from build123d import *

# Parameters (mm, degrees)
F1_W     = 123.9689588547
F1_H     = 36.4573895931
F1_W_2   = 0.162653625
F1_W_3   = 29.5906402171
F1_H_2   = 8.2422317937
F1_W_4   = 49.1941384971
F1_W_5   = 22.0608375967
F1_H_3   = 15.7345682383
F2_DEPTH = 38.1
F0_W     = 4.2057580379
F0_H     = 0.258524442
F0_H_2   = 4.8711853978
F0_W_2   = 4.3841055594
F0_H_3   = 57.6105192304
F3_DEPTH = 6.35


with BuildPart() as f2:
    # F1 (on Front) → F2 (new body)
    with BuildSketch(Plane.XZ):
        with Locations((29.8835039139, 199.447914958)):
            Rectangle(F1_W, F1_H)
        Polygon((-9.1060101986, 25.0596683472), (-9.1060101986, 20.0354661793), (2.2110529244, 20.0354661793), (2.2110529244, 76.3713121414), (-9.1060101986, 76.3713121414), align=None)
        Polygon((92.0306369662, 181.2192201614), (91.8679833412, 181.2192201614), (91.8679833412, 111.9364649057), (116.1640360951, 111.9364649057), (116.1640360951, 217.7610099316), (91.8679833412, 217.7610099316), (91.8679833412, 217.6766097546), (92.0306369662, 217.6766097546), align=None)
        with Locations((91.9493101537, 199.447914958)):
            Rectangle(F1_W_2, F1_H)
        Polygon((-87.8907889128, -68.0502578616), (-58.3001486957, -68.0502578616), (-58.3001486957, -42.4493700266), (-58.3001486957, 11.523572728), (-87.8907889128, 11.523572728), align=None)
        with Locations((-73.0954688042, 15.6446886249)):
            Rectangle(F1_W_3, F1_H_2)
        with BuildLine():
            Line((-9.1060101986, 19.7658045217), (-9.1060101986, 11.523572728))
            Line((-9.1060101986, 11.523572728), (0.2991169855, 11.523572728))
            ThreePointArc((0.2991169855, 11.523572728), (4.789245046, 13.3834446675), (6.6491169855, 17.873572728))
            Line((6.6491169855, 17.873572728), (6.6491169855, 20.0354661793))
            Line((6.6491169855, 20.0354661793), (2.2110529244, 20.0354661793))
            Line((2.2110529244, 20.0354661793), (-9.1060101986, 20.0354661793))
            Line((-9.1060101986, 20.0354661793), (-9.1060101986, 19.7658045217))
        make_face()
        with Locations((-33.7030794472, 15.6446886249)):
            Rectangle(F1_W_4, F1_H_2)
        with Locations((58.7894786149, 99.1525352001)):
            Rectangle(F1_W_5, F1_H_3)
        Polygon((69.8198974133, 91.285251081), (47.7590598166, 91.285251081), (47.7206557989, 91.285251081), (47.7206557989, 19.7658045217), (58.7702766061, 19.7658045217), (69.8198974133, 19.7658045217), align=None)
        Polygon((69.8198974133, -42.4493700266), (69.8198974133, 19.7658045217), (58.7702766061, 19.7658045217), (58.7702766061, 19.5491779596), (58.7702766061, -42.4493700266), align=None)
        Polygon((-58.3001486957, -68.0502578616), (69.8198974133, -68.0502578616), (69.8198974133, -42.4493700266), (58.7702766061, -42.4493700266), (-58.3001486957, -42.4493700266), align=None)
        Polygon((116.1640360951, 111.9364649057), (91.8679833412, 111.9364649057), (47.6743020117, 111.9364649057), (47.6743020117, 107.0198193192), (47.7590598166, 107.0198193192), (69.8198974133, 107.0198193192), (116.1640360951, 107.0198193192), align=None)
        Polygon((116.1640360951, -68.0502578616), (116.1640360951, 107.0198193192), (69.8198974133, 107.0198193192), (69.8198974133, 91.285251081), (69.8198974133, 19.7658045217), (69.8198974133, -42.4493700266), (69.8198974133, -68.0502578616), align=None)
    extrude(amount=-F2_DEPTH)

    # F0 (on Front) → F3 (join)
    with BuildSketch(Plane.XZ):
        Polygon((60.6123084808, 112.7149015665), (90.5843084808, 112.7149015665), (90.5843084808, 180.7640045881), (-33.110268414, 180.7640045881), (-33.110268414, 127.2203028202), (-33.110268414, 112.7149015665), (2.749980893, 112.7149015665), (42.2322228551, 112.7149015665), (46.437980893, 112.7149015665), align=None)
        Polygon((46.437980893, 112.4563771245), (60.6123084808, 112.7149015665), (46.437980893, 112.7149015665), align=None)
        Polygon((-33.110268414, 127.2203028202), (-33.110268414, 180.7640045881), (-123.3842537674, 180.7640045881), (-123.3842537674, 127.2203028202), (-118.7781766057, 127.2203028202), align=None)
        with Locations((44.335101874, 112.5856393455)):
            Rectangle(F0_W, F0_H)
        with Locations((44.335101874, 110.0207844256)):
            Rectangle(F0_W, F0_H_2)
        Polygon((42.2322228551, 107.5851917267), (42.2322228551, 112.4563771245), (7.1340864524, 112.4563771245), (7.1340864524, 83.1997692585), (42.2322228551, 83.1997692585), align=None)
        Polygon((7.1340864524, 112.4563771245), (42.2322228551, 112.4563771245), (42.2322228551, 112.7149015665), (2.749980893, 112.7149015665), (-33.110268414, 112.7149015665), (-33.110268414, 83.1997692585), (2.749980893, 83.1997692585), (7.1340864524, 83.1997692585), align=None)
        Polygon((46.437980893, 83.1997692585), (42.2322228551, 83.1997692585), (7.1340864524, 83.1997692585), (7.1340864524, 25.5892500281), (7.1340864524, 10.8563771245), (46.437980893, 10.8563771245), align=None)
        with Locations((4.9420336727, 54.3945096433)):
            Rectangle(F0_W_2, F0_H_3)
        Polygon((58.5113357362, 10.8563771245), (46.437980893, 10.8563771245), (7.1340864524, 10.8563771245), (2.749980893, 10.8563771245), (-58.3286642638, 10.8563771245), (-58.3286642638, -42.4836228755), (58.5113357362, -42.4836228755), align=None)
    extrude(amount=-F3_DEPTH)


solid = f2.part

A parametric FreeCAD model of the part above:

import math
import FreeCAD as App
import Part
import Sketcher

V = App.Vector
Q = App.Units.Quantity

doc = App.newDocument("Part")
body = doc.addObject("PartDesign::Body", "Body")

sketch1 = body.newObject("Sketcher::SketchObject", "Sketch")
sketch1.AttachmentSupport = (doc.getObject("XZ_Plane"), [""])
sketch1.MapMode = "FlatFace"
sketch1.addGeometry(Part.LineSegment(V(-32.101, 217.677, 0), V(-32.101, 181.219, 0)), False)
sketch1.addGeometry(Part.LineSegment(V(-32.101, 181.219, 0), V(91.868, 181.219, 0)), False)
sketch1.addGeometry(Part.LineSegment(V(91.868, 181.219, 0), V(91.868, 111.936, 0)), False)
sketch1.addGeometry(Part.LineSegment(V(91.868, 111.936, 0), V(47.674, 111.936, 0)), False)
sketch1.addGeometry(Part.LineSegment(V(47.674, 111.936, 0), V(47.674, 107.02, 0)), False)
sketch1.addGeometry(Part.LineSegment(V(47.674, 107.02, 0), V(47.759, 107.02, 0)), False)
sketch1.addGeometry(Part.LineSegment(V(47.759, 107.02, 0), V(47.759, 91.285, 0)), False)
sketch1.addGeometry(Part.LineSegment(V(47.759, 91.285, 0), V(47.721, 91.285, 0)), False)
sketch1.addGeometry(Part.LineSegment(V(47.721, 91.285, 0), V(47.721, 19.766, 0)), False)
sketch1.addGeometry(Part.LineSegment(V(47.721, 19.766, 0), V(58.77, 19.766, 0)), False)
sketch1.addGeometry(Part.LineSegment(V(58.77, 19.766, 0), V(58.77, -42.449, 0)), False)
sketch1.addGeometry(Part.LineSegment(V(58.77, -42.449, 0), V(-58.3, -42.449, 0)), False)
sketch1.addGeometry(Part.LineSegment(V(-58.3, -42.449, 0), V(-58.3, 11.524, 0)), False)
sketch1.addGeometry(Part.LineSegment(V(-58.3, 11.524, 0), V(0.299, 11.524, 0)), False)
sketch1.addGeometry(Part.ArcOfCircle(Part.Circle(V(0.299, 17.874, 0), V(0, 0, 1), 6.35), math.radians(-90), math.radians(0)), False)
sketch1.addGeometry(Part.LineSegment(V(6.649, 17.874, 0), V(6.649, 20.035, 0)), False)
sketch1.addGeometry(Part.LineSegment(V(6.649, 20.035, 0), V(2.211, 20.035, 0)), False)
sketch1.addGeometry(Part.LineSegment(V(2.211, 20.035, 0), V(2.211, 76.371, 0)), False)
sketch1.addGeometry(Part.LineSegment(V(2.211, 76.371, 0), V(-9.106, 76.371, 0)), False)
sketch1.addGeometry(Part.LineSegment(V(-9.106, 76.371, 0), V(-9.106, 19.766, 0)), False)
sketch1.addGeometry(Part.LineSegment(V(-9.106, 19.766, 0), V(-87.891, 19.766, 0)), False)
sketch1.addGeometry(Part.LineSegment(V(-87.891, 19.766, 0), V(-87.891, -68.05, 0)), False)
sketch1.addGeometry(Part.LineSegment(V(-87.891, -68.05, 0), V(116.164, -68.05, 0)), False)
sketch1.addGeometry(Part.LineSegment(V(116.164, -68.05, 0), V(116.164, 217.761, 0)), False)
sketch1.addGeometry(Part.LineSegment(V(116.164, 217.761, 0), V(91.868, 217.761, 0)), False)
sketch1.addGeometry(Part.LineSegment(V(91.868, 217.761, 0), V(91.868, 217.677, 0)), False)
sketch1.addGeometry(Part.LineSegment(V(91.868, 217.677, 0), V(-32.101, 217.677, 0)), False)
sketch1.addConstraint(Sketcher.Constraint("Coincident", 0, 2, 1, 1))
sketch1.addConstraint(Sketcher.Constraint("Coincident", 1, 2, 2, 1))
sketch1.addConstraint(Sketcher.Constraint("Coincident", 2, 2, 3, 1))
sketch1.addConstraint(Sketcher.Constraint("Coincident", 3, 2, 4, 1))
sketch1.addConstraint(Sketcher.Constraint("Coincident", 4, 2, 5, 1))
sketch1.addConstraint(Sketcher.Constraint("Coincident", 5, 2, 6, 1))
sketch1.addConstraint(Sketcher.Constraint("Coincident", 6, 2, 7, 1))
sketch1.addConstraint(Sketcher.Constraint("Coincident", 7, 2, 8, 1))
sketch1.addConstraint(Sketcher.Constraint("Coincident", 8, 2, 9, 1))
sketch1.addConstraint(Sketcher.Constraint("Coincident", 9, 2, 10, 1))
sketch1.addConstraint(Sketcher.Constraint("Coincident", 10, 2, 11, 1))
sketch1.addConstraint(Sketcher.Constraint("Coincident", 11, 2, 12, 1))
sketch1.addConstraint(Sketcher.Constraint("Coincident", 12, 2, 13, 1))
sketch1.addConstraint(Sketcher.Constraint("Tangent", 13, 2, 14, 1))
sketch1.addConstraint(Sketcher.Constraint("Tangent", 14, 2, 15, 1))
sketch1.addConstraint(Sketcher.Constraint("Coincident", 15, 2, 16, 1))
sketch1.addConstraint(Sketcher.Constraint("Coincident", 16, 2, 17, 1))
sketch1.addConstraint(Sketcher.Constraint("Coincident", 17, 2, 18, 1))
sketch1.addConstraint(Sketcher.Constraint("Coincident", 18, 2, 19, 1))
sketch1.addConstraint(Sketcher.Constraint("Coincident", 19, 2, 20, 1))
sketch1.addConstraint(Sketcher.Constraint("Coincident", 20, 2, 21, 1))
sketch1.addConstraint(Sketcher.Constraint("Coincident", 21, 2, 22, 1))
sketch1.addConstraint(Sketcher.Constraint("Coincident", 22, 2, 23, 1))
sketch1.addConstraint(Sketcher.Constraint("Coincident", 23, 2, 24, 1))
sketch1.addConstraint(Sketcher.Constraint("Coincident", 24, 2, 25, 1))
sketch1.addConstraint(Sketcher.Constraint("Coincident", 25, 2, 26, 1))
sketch1.addConstraint(Sketcher.Constraint("Coincident", 26, 2, 0, 1))
sketch1.addConstraint(Sketcher.Constraint("Vertical", 0))
sketch1.addConstraint(Sketcher.Constraint("Horizontal", 1))
sketch1.addConstraint(Sketcher.Constraint("Vertical", 2))
sketch1.addConstraint(Sketcher.Constraint("Horizontal", 3))
sketch1.addConstraint(Sketcher.Constraint("Vertical", 4))
sketch1.addConstraint(Sketcher.Constraint("Horizontal", 5))
sketch1.addConstraint(Sketcher.Constraint("Vertical", 6))
sketch1.addConstraint(Sketcher.Constraint("Horizontal", 7))
sketch1.addConstraint(Sketcher.Constraint("Vertical", 8))
sketch1.addConstraint(Sketcher.Constraint("Horizontal", 9))
sketch1.addConstraint(Sketcher.Constraint("Vertical", 10))
sketch1.addConstraint(Sketcher.Constraint("Horizontal", 11))
sketch1.addConstraint(Sketcher.Constraint("Vertical", 12))
sketch1.addConstraint(Sketcher.Constraint("Horizontal", 13))
sketch1.addConstraint(Sketcher.Constraint("Vertical", 15))
sketch1.addConstraint(Sketcher.Constraint("Horizontal", 16))
sketch1.addConstraint(Sketcher.Constraint("Vertical", 17))
sketch1.addConstraint(Sketcher.Constraint("Horizontal", 18))
sketch1.addConstraint(Sketcher.Constraint("Vertical", 19))
sketch1.addConstraint(Sketcher.Constraint("Horizontal", 20))
sketch1.addConstraint(Sketcher.Constraint("Vertical", 21))
sketch1.addConstraint(Sketcher.Constraint("Horizontal", 22))
sketch1.addConstraint(Sketcher.Constraint("Vertical", 23))
sketch1.addConstraint(Sketcher.Constraint("Horizontal", 24))
sketch1.addConstraint(Sketcher.Constraint("Vertical", 25))
sketch1.addConstraint(Sketcher.Constraint("Horizontal", 26))
sketch1.addConstraint(Sketcher.Constraint("Horizontal", 9, 2, 19, 2))
sketch1.addConstraint(Sketcher.Constraint("Vertical", 2, 2, 24, 2))
sketch1.addConstraint(Sketcher.Constraint("Radius", 14, Q("0.25 in")))
sketch1.addConstraint(Sketcher.Constraint("DistanceY", 25, 2, 25, 1, 0.0844))
sketch1.addConstraint(Sketcher.Constraint("DistanceX", 1, 1, 1, 2, 123.968959))
sketch1.addConstraint(Sketcher.Constraint("DistanceX", 3, 2, 3, 1, 44.193681))
sketch1.addConstraint(Sketcher.Constraint("DistanceX", 9, 1, 9, 2, 11.049621))
sketch1.addConstraint(Sketcher.Constraint("DistanceX", 20, 2, 20, 1, 78.784779))
sketch1.addConstraint(Sketcher.Constraint("DistanceY", 0, 2, 0, 1, 36.45739))
sketch1.addConstraint(Sketcher.Constraint("DistanceY", 6, 2, 6, 1, 15.734568))
sketch1.addConstraint(Sketcher.Constraint("DistanceY", 4, 2, 1, 2, 74.199401))
sketch1.addConstraint(Sketcher.Constraint("DistanceX", 5, 1, 5, 2, 0.084758))
sketch1.addConstraint(Sketcher.Constraint("DistanceX", 7, 2, 7, 1, 0.038404))
sketch1.addConstraint(Sketcher.Constraint("DistanceX", 11, 2, 11, 1, 117.070425))
sketch1.addConstraint(Sketcher.Constraint("DistanceX", 13, 1, 13, 2, 58.599266))
sketch1.addConstraint(Sketcher.Constraint("DistanceX", 16, 2, 16, 1, 4.438064))
sketch1.addConstraint(Sketcher.Constraint("DistanceX", 18, 2, 18, 1, 11.317063))
sketch1.addConstraint(Sketcher.Constraint("DistanceX", 22, 1, 22, 2, 204.054825))
sketch1.addConstraint(Sketcher.Constraint("DistanceY", 2, 2, 2, 1, 69.282755))
sketch1.addConstraint(Sketcher.Constraint("DistanceY", 8, 2, 8, 1, 71.519447))
sketch1.addConstraint(Sketcher.Constraint("DistanceY", 10, 2, 10, 1, 62.215175))
sketch1.addConstraint(Sketcher.Constraint("DistanceY", 12, 1, 12, 2, 53.972943))
sketch1.addConstraint(Sketcher.Constraint("DistanceY", 15, 1, 15, 2, 2.161893))
sketch1.addConstraint(Sketcher.Constraint("DistanceY", 17, 1, 17, 2, 56.335846))
sketch1.addConstraint(Sketcher.Constraint("DistanceY", 21, 2, 21, 1, 87.816062))
sketch1.addConstraint(Sketcher.Constraint("DistanceY", -1, 1, 0, 2, 181.21922))
sketch1.addConstraint(Sketcher.Constraint("DistanceX", -1, 1, 5, 2, 47.75906))
pad1 = body.newObject("PartDesign::Pad", "Pad")
pad1.Profile = sketch1
pad1.Length = Q("1.5 in")
pad1.Reversed = True

sketch2 = body.newObject("Sketcher::SketchObject", "Sketch001")
sketch2.AttachmentSupport = (doc.getObject("XZ_Plane"), [""])
sketch2.MapMode = "FlatFace"
sketch2.addGeometry(Part.LineSegment(V(90.6, 112.7, 0), V(90.6, 180.8, 0)), False)
sketch2.addGeometry(Part.LineSegment(V(90.6, 180.8, 0), V(-123.4, 180.8, 0)), False)
sketch2.addGeometry(Part.LineSegment(V(-123.4, 180.8, 0), V(-123.4, 127.2, 0)), False)
sketch2.addGeometry(Part.LineSegment(V(-123.4, 127.2, 0), V(-33.1, 127.2, 0)), False)
sketch2.addGeometry(Part.LineSegment(V(-33.1, 127.2, 0), V(-33.1, 83.2, 0)), False)
sketch2.addGeometry(Part.LineSegment(V(-33.1, 83.2, 0), V(2.7, 83.2, 0)), False)
sketch2.addGeometry(Part.LineSegment(V(2.7, 83.2, 0), V(2.7, 25.6, 0)), False)
sketch2.addGeometry(Part.LineSegment(V(2.7, 25.6, 0), V(7.1, 25.6, 0)), False)
sketch2.addGeometry(Part.LineSegment(V(7.1, 25.6, 0), V(7.1, 10.9, 0)), False)
sketch2.addGeometry(Part.LineSegment(V(7.1, 10.9, 0), V(-58.3, 10.9, 0)), False)
sketch2.addGeometry(Part.LineSegment(V(-58.3, 10.9, 0), V(-58.3, -42.5, 0)), False)
sketch2.addGeometry(Part.LineSegment(V(-58.3, -42.5, 0), V(58.5, -42.5, 0)), False)
sketch2.addGeometry(Part.LineSegment(V(58.5, -42.5, 0), V(58.5, 10.9, 0)), False)
sketch2.addGeometry(Part.LineSegment(V(58.5, 10.9, 0), V(46.4, 10.9, 0)), False)
sketch2.addGeometry(Part.LineSegment(V(46.4, 10.9, 0), V(46.4, 83.2, 0)), False)
sketch2.addGeometry(Part.LineSegment(V(46.4, 83.2, 0), V(42.2, 83.2, 0)), False)
sketch2.addGeometry(Part.LineSegment(V(42.2, 83.2, 0), V(42.2, 107.6, 0)), False)
sketch2.addGeometry(Part.LineSegment(V(42.2, 107.6, 0), V(46.4, 107.6, 0)), False)
sketch2.addGeometry(Part.LineSegment(V(46.4, 107.6, 0), V(46.4, 112.5, 0)), False)
sketch2.addGeometry(Part.LineSegment(V(46.4, 112.5, 0), V(60.6, 112.7, 0)), False)
sketch2.addGeometry(Part.LineSegment(V(60.6, 112.7, 0), V(90.6, 112.7, 0)), False)
sketch2.addConstraint(Sketcher.Constraint("Coincident", 0, 2, 1, 1))
sketch2.addConstraint(Sketcher.Constraint("Coincident", 1, 2, 2, 1))
sketch2.addConstraint(Sketcher.Constraint("Coincident", 2, 2, 3, 1))
sketch2.addConstraint(Sketcher.Constraint("Coincident", 3, 2, 4, 1))
sketch2.addConstraint(Sketcher.Constraint("Coincident", 4, 2, 5, 1))
sketch2.addConstraint(Sketcher.Constraint("Coincident", 5, 2, 6, 1))
sketch2.addConstraint(Sketcher.Constraint("Coincident", 6, 2, 7, 1))
sketch2.addConstraint(Sketcher.Constraint("Coincident", 7, 2, 8, 1))
sketch2.addConstraint(Sketcher.Constraint("Coincident", 8, 2, 9, 1))
sketch2.addConstraint(Sketcher.Constraint("Coincident", 9, 2, 10, 1))
sketch2.addConstraint(Sketcher.Constraint("Coincident", 10, 2, 11, 1))
sketch2.addConstraint(Sketcher.Constraint("Coincident", 11, 2, 12, 1))
sketch2.addConstraint(Sketcher.Constraint("Coincident", 12, 2, 13, 1))
sketch2.addConstraint(Sketcher.Constraint("Coincident", 13, 2, 14, 1))
sketch2.addConstraint(Sketcher.Constraint("Coincident", 14, 2, 15, 1))
sketch2.addConstraint(Sketcher.Constraint("Coincident", 15, 2, 16, 1))
sketch2.addConstraint(Sketcher.Constraint("Coincident", 16, 2, 17, 1))
sketch2.addConstraint(Sketcher.Constraint("Coincident", 17, 2, 18, 1))
sketch2.addConstraint(Sketcher.Constraint("Coincident", 18, 2, 19, 1))
sketch2.addConstraint(Sketcher.Constraint("Coincident", 19, 2, 20, 1))
sketch2.addConstraint(Sketcher.Constraint("Coincident", 20, 2, 0, 1))
sketch2.addConstraint(Sketcher.Constraint("Vertical", 0))
sketch2.addConstraint(Sketcher.Constraint("Horizontal", 1))
sketch2.addConstraint(Sketcher.Constraint("Vertical", 2))
sketch2.addConstraint(Sketcher.Constraint("Horizontal", 3))
sketch2.addConstraint(Sketcher.Constraint("Vertical", 4))
sketch2.addConstraint(Sketcher.Constraint("Horizontal", 5))
sketch2.addConstraint(Sketcher.Constraint("Vertical", 6))
sketch2.addConstraint(Sketcher.Constraint("Horizontal", 7))
sketch2.addConstraint(Sketcher.Constraint("Vertical", 8))
sketch2.addConstraint(Sketcher.Constraint("Horizontal", 9))
sketch2.addConstraint(Sketcher.Constraint("Vertical", 10))
sketch2.addConstraint(Sketcher.Constraint("Horizontal", 11))
sketch2.addConstraint(Sketcher.Constraint("Vertical", 12))
sketch2.addConstraint(Sketcher.Constraint("Horizontal", 13))
sketch2.addConstraint(Sketcher.Constraint("Vertical", 14))
sketch2.addConstraint(Sketcher.Constraint("Horizontal", 15))
sketch2.addConstraint(Sketcher.Constraint("Vertical", 16))
sketch2.addConstraint(Sketcher.Constraint("Horizontal", 17))
sketch2.addConstraint(Sketcher.Constraint("Vertical", 18))
sketch2.addConstraint(Sketcher.Constraint("Horizontal", 20))
sketch2.addConstraint(Sketcher.Constraint("Horizontal", 9, 2, 12, 2))
sketch2.addConstraint(Sketcher.Constraint("Horizontal", 5, 2, 14, 2))
sketch2.addConstraint(Sketcher.Constraint("Vertical", 14, 2, 17, 2))
sketch2.addConstraint(Sketcher.Constraint("DistanceX", 11, 1, 11, 2, Q("4.6 in")))
sketch2.addConstraint(Sketcher.Constraint("DistanceY", 10, 2, 10, 1, Q("2.1 in")))
sketch2.addConstraint(Sketcher.Constraint("DistanceX", 20, 1, 20, 2, Q("1.18 in")))
sketch2.addConstraint(Sketcher.Constraint("DistanceX", 6, 2, 13, 2, Q("1.72 in")))
sketch2.addConstraint(Sketcher.Constraint("DistanceY", 2, 2, 2, 1, 53.543702))
sketch2.addConstraint(Sketcher.Constraint("DistanceX", 5, 1, 5, 2, 35.860249))
sketch2.addConstraint(Sketcher.Constraint("DistanceX", 9, 2, 9, 1, 65.462751))
sketch2.addConstraint(Sketcher.Constraint("DistanceX", 15, 2, 15, 1, 4.205758))
sketch2.addConstraint(Sketcher.Constraint("DistanceY", 6, 2, 6, 1, 57.610519))
sketch2.addConstraint(Sketcher.Constraint("DistanceY", -1, 1, 19, 2, 112.714902))
sketch2.addConstraint(Sketcher.Constraint("DistanceX", 1, 2, 1, 1, 213.968562))
sketch2.addConstraint(Sketcher.Constraint("DistanceX", 3, 1, 3, 2, 90.273985))
sketch2.addConstraint(Sketcher.Constraint("DistanceX", 7, 1, 7, 2, 4.384106))
sketch2.addConstraint(Sketcher.Constraint("DistanceY", 0, 1, 0, 2, 68.049103))
sketch2.addConstraint(Sketcher.Constraint("DistanceY", 4, 2, 4, 1, 44.020534))
sketch2.addConstraint(Sketcher.Constraint("DistanceY", 8, 2, 8, 1, 14.732873))
sketch2.addConstraint(Sketcher.Constraint("DistanceY", 16, 1, 16, 2, 24.385422))
sketch2.addConstraint(Sketcher.Constraint("DistanceY", 18, 1, 18, 2, 4.871185))
sketch2.addConstraint(Sketcher.Constraint("DistanceX", -1, 1, 0, 2, 90.584308))
pad2 = body.newObject("PartDesign::Pad", "Pad001")
pad2.Profile = sketch2
pad2.Length = Q("0.25 in")
pad2.Reversed = True

doc.recompute()
